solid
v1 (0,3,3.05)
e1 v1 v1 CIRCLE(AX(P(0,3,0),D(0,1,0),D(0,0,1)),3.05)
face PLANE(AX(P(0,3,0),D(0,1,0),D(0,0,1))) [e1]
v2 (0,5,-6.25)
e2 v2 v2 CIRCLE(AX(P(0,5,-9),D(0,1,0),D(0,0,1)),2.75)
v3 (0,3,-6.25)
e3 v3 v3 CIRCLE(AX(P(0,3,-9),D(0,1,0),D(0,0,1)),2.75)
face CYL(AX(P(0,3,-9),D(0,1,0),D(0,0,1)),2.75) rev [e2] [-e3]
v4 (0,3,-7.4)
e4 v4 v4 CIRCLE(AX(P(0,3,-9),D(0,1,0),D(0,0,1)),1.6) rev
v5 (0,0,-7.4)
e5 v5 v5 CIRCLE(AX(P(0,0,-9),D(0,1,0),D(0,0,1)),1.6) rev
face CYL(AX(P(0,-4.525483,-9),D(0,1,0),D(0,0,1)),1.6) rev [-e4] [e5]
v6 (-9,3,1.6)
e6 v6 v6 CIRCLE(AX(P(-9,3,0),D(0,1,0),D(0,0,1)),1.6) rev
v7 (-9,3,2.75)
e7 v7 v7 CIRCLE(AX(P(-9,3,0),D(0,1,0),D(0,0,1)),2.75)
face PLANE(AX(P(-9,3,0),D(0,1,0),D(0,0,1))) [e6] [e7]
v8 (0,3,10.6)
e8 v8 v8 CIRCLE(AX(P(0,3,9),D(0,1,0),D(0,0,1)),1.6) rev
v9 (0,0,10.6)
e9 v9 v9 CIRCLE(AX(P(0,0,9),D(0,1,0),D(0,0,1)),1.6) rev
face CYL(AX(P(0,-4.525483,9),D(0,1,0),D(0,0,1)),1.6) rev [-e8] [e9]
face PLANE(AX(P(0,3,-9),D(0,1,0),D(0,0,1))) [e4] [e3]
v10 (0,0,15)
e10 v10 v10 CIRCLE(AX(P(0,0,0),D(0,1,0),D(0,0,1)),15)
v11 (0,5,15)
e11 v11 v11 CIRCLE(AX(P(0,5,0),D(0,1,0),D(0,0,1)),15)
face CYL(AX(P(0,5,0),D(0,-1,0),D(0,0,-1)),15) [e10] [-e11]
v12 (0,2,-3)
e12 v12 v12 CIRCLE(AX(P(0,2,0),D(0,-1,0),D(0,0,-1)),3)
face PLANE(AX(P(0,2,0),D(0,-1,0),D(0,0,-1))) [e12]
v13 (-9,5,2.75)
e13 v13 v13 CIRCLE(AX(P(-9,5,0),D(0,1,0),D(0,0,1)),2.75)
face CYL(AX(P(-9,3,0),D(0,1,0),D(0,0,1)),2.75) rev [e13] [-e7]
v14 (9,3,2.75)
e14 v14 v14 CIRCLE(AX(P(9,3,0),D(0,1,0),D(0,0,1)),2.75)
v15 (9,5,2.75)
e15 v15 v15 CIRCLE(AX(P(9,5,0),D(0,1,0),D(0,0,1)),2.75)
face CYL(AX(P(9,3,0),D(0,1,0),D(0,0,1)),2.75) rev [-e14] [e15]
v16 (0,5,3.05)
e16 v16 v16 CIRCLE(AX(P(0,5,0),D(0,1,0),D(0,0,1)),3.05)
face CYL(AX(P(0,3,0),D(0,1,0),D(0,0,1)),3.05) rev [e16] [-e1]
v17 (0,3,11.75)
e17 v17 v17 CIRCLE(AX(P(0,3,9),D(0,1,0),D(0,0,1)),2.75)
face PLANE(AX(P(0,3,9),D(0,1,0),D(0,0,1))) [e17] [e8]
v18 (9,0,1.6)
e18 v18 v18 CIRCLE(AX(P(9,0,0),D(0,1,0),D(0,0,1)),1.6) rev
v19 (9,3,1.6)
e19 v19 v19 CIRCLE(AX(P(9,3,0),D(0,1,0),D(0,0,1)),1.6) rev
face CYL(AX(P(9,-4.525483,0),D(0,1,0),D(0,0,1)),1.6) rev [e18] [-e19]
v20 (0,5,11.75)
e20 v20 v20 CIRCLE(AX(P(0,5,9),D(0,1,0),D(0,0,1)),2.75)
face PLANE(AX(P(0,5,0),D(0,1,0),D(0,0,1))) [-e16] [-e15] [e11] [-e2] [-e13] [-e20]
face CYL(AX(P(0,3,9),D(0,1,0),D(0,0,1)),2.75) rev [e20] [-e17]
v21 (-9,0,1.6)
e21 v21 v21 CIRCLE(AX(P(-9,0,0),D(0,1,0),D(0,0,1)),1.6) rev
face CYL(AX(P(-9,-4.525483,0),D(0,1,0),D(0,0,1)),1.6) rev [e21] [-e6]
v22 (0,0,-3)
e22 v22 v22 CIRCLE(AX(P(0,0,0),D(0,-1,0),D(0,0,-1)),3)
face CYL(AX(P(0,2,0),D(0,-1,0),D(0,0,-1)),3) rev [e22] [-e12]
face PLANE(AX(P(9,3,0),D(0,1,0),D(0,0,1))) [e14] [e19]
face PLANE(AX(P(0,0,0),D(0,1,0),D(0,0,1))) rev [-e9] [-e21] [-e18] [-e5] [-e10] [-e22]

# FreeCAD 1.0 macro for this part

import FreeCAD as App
import Part
import Sketcher
from FreeCAD import Vector
Q = App.Units.Quantity

doc = App.newDocument("Part")
params = doc.addObject("Spreadsheet::Sheet", "Params")
for row, (alias, value) in enumerate([
    ("sketch1_diameter", "30 mm"),
    ("pad1_length", "5 mm"),
    ("sketch2_diameter", "6 mm"),
    ("pocket1_length", "2 mm"),
    ("sketch3_diameter", "3.2 mm"),
    ("pocket2_length", "5 mm"),
    ("sketch4_diameter", "5.5 mm"),
    ("sketch4_diameter2", "6.1 mm"),
    ("pocket3_length", "2 mm"),
], start=1):
    params.set(f"A{row}", alias)
    params.set(f"B{row}", "=" + value)
    params.setAlias(f"B{row}", alias)

body = doc.addObject("PartDesign::Body", "Body")

# Sketch on XZ plane
sketch1 = body.newObject("Sketcher::SketchObject", "Sketch")
sketch1.AttachmentSupport = (doc.getObject("XZ_Plane"), [""])
sketch1.MapMode = "FlatFace"
sketch1.addGeometry(Part.Circle(Vector(0, 0, 0), Vector(0, 0, 1), 15), False)
sketch1.addConstraint(Sketcher.Constraint("Coincident", 0, 3, -1, 1))
sketch1.addConstraint(Sketcher.Constraint("Diameter", 0, Q("30 mm")))
sketch1.setExpression("Constraints[1]", "Params.sketch1_diameter")
pad1 = body.newObject("PartDesign::Pad", "Pad")
pad1.Profile = sketch1
pad1.setExpression("Length", "Params.pad1_length")
pad1.Reversed = True

# Sketch on XZ plane
sketch2 = body.newObject("Sketcher::SketchObject", "Sketch001")
sketch2.AttachmentSupport = (doc.getObject("XZ_Plane"), [""])
sketch2.MapMode = "FlatFace"
sketch2.addGeometry(Part.Circle(Vector(0, 0, 0), Vector(0, 0, 1), 3), False)
sketch2.addConstraint(Sketcher.Constraint("Coincident", 0, 3, -1, 1))
sketch2.addConstraint(Sketcher.Constraint("Diameter", 0, Q("6 mm")))
sketch2.setExpression("Constraints[1]", "Params.sketch2_diameter")
pocket1 = body.newObject("PartDesign::Pocket", "Pocket")
pocket1.Profile = sketch2
pocket1.setExpression("Length", "Params.pocket1_length")

# Sketch on XZ plane
sketch3 = body.newObject("Sketcher::SketchObject", "Sketch002")
sketch3.AttachmentSupport = (doc.getObject("XZ_Plane"), [""])
sketch3.MapMode = "FlatFace"
sketch3.AttachmentOffset = App.Placement(Vector(0, 0, -5), App.Rotation())
sketch3.addGeometry(Part.Circle(Vector(0, -9, 0), Vector(0, 0, 1), 1.6), False)
sketch3.addGeometry(Part.Circle(Vector(0, 9, 0), Vector(0, 0, 1), 1.6), False)
sketch3.addGeometry(Part.Circle(Vector(9, 0, 0), Vector(0, 0, 1), 1.6), False)
sketch3.addGeometry(Part.Circle(Vector(-9, 0, 0), Vector(0, 0, 1), 1.6), False)
sketch3.addConstraint(Sketcher.Constraint("Equal", 0, 1))
sketch3.addConstraint(Sketcher.Constraint("Equal", 1, 2))
sketch3.addConstraint(Sketcher.Constraint("Equal", 2, 3))
sketch3.addConstraint(Sketcher.Constraint("Symmetric", 0, 3, 1, 3, -1, 1))
sketch3.addConstraint(Sketcher.Constraint("Symmetric", 2, 3, 3, 3, -1, 1))
sketch3.addConstraint(Sketcher.Constraint("PointOnObject", 0, 3, -2))
sketch3.addConstraint(Sketcher.Constraint("PointOnObject", 2, 3, -1))
sketch3.addConstraint(Sketcher.Constraint("Diameter", 0, Q("3.2 mm")))
sketch3.addConstraint(Sketcher.Constraint("DistanceY", 0, 3, -1, 1, Q("9 mm")))
sketch3.addConstraint(Sketcher.Constraint("DistanceX", -1, 1, 2, 3, Q("9 mm")))
sketch3.setExpression("Constraints[7]", "Params.sketch3_diameter")
pocket2 = body.newObject("PartDesign::Pocket", "Pocket001")
pocket2.Profile = sketch3
pocket2.setExpression("Length", "Params.pocket2_length")
pocket2.Reversed = True

# Sketch on XZ plane
sketch4 = body.newObject("Sketcher::SketchObject", "Sketch003")
sketch4.AttachmentSupport = (doc.getObject("XZ_Plane"), [""])
sketch4.MapMode = "FlatFace"
sketch4.AttachmentOffset = App.Placement(Vector(0, 0, -5), App.Rotation())
sketch4.addGeometry(Part.Circle(Vector(0, -9, 0), Vector(0, 0, 1), 2.8), False)
sketch4.addGeometry(Part.Circle(Vector(-9, 0, 0), Vector(0, 0, 1), 2.8), False)
sketch4.addGeometry(Part.Circle(Vector(9, 0, 0), Vector(0, 0, 1), 2.8), False)
sketch4.addGeometry(Part.Circle(Vector(0, 9, 0), Vector(0, 0, 1), 2.8), False)
sketch4.addGeometry(Part.Circle(Vector(0, 0, 0), Vector(0, 0, 1), 3), False)
sketch4.addConstraint(Sketcher.Constraint("Coincident", 4, 3, -1, 1))
sketch4.addConstraint(Sketcher.Constraint("Equal", 0, 1))
sketch4.addConstraint(Sketcher.Constraint("Equal", 1, 2))
sketch4.addConstraint(Sketcher.Constraint("Equal", 2, 3))
sketch4.addConstraint(Sketcher.Constraint("Symmetric", 1, 3, 2, 3, -1, 1))
sketch4.addConstraint(Sketcher.Constraint("Symmetric", 0, 3, 3, 3, -1, 1))
sketch4.addConstraint(Sketcher.Constraint("PointOnObject", 0, 3, -2))
sketch4.addConstraint(Sketcher.Constraint("PointOnObject", 1, 3, -1))
sketch4.addConstraint(Sketcher.Constraint("Diameter", 0, Q("5.5 mm")))
sketch4.addConstraint(Sketcher.Constraint("Diameter", 4, Q("6.1 mm")))
sketch4.addConstraint(Sketcher.Constraint("DistanceY", 0, 3, -1, 1, Q("9 mm")))
sketch4.addConstraint(Sketcher.Constraint("DistanceX", 1, 3, -1, 1, Q("9 mm")))
sketch4.setExpression("Constraints[8]", "Params.sketch4_diameter")
sketch4.setExpression("Constraints[9]", "Params.sketch4_diameter2")
pocket3 = body.newObject("PartDesign::Pocket", "Pocket002")
pocket3.Profile = sketch4
pocket3.setExpression("Length", "Params.pocket3_length")
pocket3.Reversed = True

doc.recompute()
